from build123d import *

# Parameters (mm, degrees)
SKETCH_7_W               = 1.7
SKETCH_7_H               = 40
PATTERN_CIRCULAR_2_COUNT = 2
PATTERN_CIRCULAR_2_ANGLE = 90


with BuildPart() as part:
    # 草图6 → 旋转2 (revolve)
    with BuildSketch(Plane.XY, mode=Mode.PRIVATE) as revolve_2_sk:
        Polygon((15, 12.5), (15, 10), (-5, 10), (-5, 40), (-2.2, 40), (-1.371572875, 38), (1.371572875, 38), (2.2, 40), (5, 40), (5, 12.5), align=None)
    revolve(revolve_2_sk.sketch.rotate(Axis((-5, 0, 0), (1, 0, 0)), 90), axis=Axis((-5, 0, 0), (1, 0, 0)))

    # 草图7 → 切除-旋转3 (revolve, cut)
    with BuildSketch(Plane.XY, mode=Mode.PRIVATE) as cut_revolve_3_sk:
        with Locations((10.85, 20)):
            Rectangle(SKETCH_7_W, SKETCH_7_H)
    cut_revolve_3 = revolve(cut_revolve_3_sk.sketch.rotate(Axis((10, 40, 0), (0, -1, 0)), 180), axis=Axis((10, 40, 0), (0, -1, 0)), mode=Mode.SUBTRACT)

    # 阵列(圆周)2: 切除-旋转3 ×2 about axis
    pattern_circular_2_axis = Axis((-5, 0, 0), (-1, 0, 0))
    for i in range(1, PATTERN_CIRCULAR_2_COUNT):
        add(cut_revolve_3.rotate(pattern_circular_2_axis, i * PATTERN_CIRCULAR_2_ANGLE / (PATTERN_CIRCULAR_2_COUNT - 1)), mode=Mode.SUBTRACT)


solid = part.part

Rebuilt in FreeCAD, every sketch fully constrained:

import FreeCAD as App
import Part
import Sketcher

V = App.Vector
Q = App.Units.Quantity

doc = App.newDocument("Part")
body = doc.addObject("PartDesign::Body", "Body")

# Sketch on XY plane
sketch1 = doc.addObject("Sketcher::SketchObject", "Sketch")
body.addObject(sketch1)
sketch1.AttachmentSupport = (doc.XY_Plane, [""])
sketch1.MapMode = "FlatFace"
sketch1.addGeometry(Part.LineSegment(V(15, 10, 0), V(15, 12.5, 0)), False)
sketch1.addGeometry(Part.LineSegment(V(15, 12.5, 0), V(5, 12.5, 0)), False)
sketch1.addGeometry(Part.LineSegment(V(5, 12.5, 0), V(5, 40, 0)), False)
sketch1.addGeometry(Part.LineSegment(V(5, 40, 0), V(2.2, 40, 0)), False)
sketch1.addGeometry(Part.LineSegment(V(2.2, 40, 0), V(1.4, 38, 0)), False)
sketch1.addGeometry(Part.LineSegment(V(1.4, 38, 0), V(-1.4, 38, 0)), False)
sketch1.addGeometry(Part.LineSegment(V(-1.4, 38, 0), V(-2.2, 40, 0)), False)
sketch1.addGeometry(Part.LineSegment(V(-2.2, 40, 0), V(-5, 40, 0)), False)
sketch1.addGeometry(Part.LineSegment(V(-5, 40, 0), V(-5, 10, 0)), False)
sketch1.addGeometry(Part.LineSegment(V(-5, 10, 0), V(15, 10, 0)), False)
sketch1.addConstraint(Sketcher.Constraint("Coincident", 0, 2, 1, 1))
sketch1.addConstraint(Sketcher.Constraint("Coincident", 1, 2, 2, 1))
sketch1.addConstraint(Sketcher.Constraint("Coincident", 2, 2, 3, 1))
sketch1.addConstraint(Sketcher.Constraint("Coincident", 3, 2, 4, 1))
sketch1.addConstraint(Sketcher.Constraint("Coincident", 4, 2, 5, 1))
sketch1.addConstraint(Sketcher.Constraint("Coincident", 5, 2, 6, 1))
sketch1.addConstraint(Sketcher.Constraint("Coincident", 6, 2, 7, 1))
sketch1.addConstraint(Sketcher.Constraint("Coincident", 7, 2, 8, 1))
sketch1.addConstraint(Sketcher.Constraint("Coincident", 8, 2, 9, 1))
sketch1.addConstraint(Sketcher.Constraint("Coincident", 9, 2, 0, 1))
sketch1.addConstraint(Sketcher.Constraint("Vertical", 0))
sketch1.addConstraint(Sketcher.Constraint("Horizontal", 1))
sketch1.addConstraint(Sketcher.Constraint("Vertical", 2))
sketch1.addConstraint(Sketcher.Constraint("Horizontal", 3))
sketch1.addConstraint(Sketcher.Constraint("Horizontal", 5))
sketch1.addConstraint(Sketcher.Constraint("Horizontal", 7))
sketch1.addConstraint(Sketcher.Constraint("Vertical", 8))
sketch1.addConstraint(Sketcher.Constraint("Horizontal", 9))
sketch1.addConstraint(Sketcher.Constraint("Symmetric", 3, 2, 6, 2, -2))
sketch1.addConstraint(Sketcher.Constraint("Equal", 3, 7))
sketch1.addConstraint(Sketcher.Constraint("Equal", 4, 6))
sketch1.addConstraint(Sketcher.Constraint("DistanceX", 1, 2, 1, 1, Q("10 mm")))
sketch1.addConstraint(Sketcher.Constraint("DistanceX", 9, 1, 9, 2, Q("20 mm")))
sketch1.addConstraint(Sketcher.Constraint("DistanceY", 8, 2, 8, 1, Q("30 mm")))
sketch1.addConstraint(Sketcher.Constraint("DistanceX", 3, 2, 3, 1, Q("2.8 mm")))
sketch1.addConstraint(Sketcher.Constraint("DistanceY", 0, 1, 0, 2, Q("2.5 mm")))
sketch1.addConstraint(Sketcher.Constraint("DistanceY", -1, 1, 2, 2, Q("40 mm")))
sketch1.addConstraint(Sketcher.Constraint("DistanceY", -1, 1, 4, 2, Q("38 mm")))
sketch1.addConstraint(Sketcher.Constraint("Angle", 4, Q("-112.5 deg")))
revolution = doc.addObject("PartDesign::Revolution", "Revolution")
body.addObject(revolution)
revolution.Profile = sketch1
revolution.ReferenceAxis = (sketch1, ["H_Axis"])
revolution.Angle = 360

# Sketch on XY plane
sketch2 = doc.addObject("Sketcher::SketchObject", "Sketch001")
body.addObject(sketch2)
sketch2.AttachmentSupport = (doc.XY_Plane, [""])
sketch2.MapMode = "FlatFace"
sketch2.addGeometry(Part.LineSegment(V(10, 40, 0), V(10, 0, 0)), False)
sketch2.addGeometry(Part.LineSegment(V(10, 0, 0), V(11.7, 0, 0)), False)
sketch2.addGeometry(Part.LineSegment(V(11.7, 0, 0), V(11.7, 40, 0)), False)
sketch2.addGeometry(Part.LineSegment(V(11.7, 40, 0), V(10, 40, 0)), False)
sketch2.addGeometry(Part.LineSegment(V(10, 40, 0), V(10, 0, 0)), True)  # axis
sketch2.addConstraint(Sketcher.Constraint("Coincident", 0, 2, 1, 1))
sketch2.addConstraint(Sketcher.Constraint("Coincident", 1, 2, 2, 1))
sketch2.addConstraint(Sketcher.Constraint("Coincident", 2, 2, 3, 1))
sketch2.addConstraint(Sketcher.Constraint("Coincident", 3, 2, 0, 1))
sketch2.addConstraint(Sketcher.Constraint("Vertical", 0))
sketch2.addConstraint(Sketcher.Constraint("Horizontal", 1))
sketch2.addConstraint(Sketcher.Constraint("Vertical", 2))
sketch2.addConstraint(Sketcher.Constraint("Horizontal", 3))
sketch2.addConstraint(Sketcher.Constraint("Vertical", 4))
sketch2.addConstraint(Sketcher.Constraint("Coincident", 4, 1, 3, 2))
sketch2.addConstraint(Sketcher.Constraint("PointOnObject", 0, 2, -1))
sketch2.addConstraint(Sketcher.Constraint("PointOnObject", 4, 2, -1))
sketch2.addConstraint(Sketcher.Constraint("DistanceY", 0, 2, 0, 1, Q("40 mm")))
sketch2.addConstraint(Sketcher.Constraint("DistanceX", 1, 1, 1, 2, Q("1.7 mm")))
sketch2.addConstraint(Sketcher.Constraint("DistanceX", -1, 1, 0, 2, Q("10 mm")))
groove = doc.addObject("PartDesign::Groove", "Groove")
body.addObject(groove)
groove.Profile = sketch2
groove.ReferenceAxis = (sketch2, ["Axis0"])
groove.Angle = 360
doc.recompute()

polarpattern = doc.addObject("PartDesign::PolarPattern", "PolarPattern")
body.addObject(polarpattern)
polarpattern.Originals = [groove]
polarpattern.Axis = (doc.X_Axis, [""])
polarpattern.Angle = 90
polarpattern.Occurrences = 2
polarpattern.Reversed = True
body.Tip = polarpattern

doc.recompute()
